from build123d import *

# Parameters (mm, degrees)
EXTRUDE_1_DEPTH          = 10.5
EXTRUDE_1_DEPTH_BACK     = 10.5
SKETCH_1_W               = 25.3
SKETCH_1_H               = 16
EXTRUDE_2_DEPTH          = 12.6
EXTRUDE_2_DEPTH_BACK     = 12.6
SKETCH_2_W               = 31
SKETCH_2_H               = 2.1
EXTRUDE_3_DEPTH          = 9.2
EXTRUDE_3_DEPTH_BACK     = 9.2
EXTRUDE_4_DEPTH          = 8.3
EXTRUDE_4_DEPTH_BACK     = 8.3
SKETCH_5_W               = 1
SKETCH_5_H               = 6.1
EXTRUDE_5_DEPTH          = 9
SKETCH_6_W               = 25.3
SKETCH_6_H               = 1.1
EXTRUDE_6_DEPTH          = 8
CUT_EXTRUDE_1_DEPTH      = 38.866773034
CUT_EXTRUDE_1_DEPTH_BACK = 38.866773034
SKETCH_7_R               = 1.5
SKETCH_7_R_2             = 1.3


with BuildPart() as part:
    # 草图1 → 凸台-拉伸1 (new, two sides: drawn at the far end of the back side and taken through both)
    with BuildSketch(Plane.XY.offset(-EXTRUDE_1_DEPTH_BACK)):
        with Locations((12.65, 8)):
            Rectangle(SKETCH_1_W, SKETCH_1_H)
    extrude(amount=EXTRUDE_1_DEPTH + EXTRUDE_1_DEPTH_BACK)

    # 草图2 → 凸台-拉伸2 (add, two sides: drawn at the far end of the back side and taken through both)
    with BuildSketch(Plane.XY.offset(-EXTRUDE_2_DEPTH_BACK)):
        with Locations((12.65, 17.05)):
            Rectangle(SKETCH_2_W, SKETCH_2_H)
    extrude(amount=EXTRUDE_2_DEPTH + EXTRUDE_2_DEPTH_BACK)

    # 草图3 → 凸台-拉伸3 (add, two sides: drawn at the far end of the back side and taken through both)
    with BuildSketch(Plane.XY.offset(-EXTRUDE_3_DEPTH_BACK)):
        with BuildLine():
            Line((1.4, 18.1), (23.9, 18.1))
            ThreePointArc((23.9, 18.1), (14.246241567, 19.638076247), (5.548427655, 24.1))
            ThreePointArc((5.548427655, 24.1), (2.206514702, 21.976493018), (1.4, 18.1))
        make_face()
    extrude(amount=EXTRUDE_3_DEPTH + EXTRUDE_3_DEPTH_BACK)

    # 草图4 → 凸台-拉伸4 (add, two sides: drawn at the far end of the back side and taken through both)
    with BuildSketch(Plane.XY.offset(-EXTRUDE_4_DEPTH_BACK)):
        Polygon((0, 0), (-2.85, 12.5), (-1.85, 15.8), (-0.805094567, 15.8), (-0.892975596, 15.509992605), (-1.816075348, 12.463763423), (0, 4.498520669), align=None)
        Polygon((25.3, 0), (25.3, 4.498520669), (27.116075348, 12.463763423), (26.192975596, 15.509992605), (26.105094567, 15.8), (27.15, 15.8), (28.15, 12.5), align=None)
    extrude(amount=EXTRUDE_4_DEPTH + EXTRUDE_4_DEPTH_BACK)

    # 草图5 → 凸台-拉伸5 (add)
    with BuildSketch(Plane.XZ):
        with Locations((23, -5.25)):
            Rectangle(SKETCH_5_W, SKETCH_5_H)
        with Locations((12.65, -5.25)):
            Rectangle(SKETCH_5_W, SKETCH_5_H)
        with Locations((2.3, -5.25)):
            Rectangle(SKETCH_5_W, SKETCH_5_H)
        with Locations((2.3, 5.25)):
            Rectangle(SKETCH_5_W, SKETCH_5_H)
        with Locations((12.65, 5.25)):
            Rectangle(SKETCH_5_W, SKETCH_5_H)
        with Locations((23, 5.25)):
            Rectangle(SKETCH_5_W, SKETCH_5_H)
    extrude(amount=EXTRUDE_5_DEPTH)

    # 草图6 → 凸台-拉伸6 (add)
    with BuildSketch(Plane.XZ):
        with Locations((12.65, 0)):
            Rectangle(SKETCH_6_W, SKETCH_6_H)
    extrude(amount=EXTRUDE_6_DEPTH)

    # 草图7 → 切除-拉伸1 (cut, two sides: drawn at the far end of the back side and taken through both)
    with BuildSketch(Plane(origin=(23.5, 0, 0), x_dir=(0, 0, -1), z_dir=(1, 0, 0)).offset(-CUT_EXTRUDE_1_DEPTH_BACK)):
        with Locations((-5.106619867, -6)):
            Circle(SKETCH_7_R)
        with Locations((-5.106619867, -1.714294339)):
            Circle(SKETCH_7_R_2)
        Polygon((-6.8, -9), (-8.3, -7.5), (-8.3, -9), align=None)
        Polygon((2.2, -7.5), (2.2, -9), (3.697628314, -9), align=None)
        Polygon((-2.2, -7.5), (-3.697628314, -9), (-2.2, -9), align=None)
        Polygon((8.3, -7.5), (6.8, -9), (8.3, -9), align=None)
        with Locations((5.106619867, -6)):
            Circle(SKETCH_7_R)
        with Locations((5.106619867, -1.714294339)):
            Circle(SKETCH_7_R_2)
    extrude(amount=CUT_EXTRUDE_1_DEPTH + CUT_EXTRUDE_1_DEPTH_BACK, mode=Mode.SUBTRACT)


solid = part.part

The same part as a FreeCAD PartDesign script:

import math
import FreeCAD as App
import Part
import Sketcher
Q = App.Units.Quantity

doc = App.newDocument("Part")
body = doc.addObject("PartDesign::Body", "Body")

# Sketch on XY plane
sketch1 = body.newObject("Sketcher::SketchObject", "Sketch")
sketch1.AttachmentSupport = (doc.getObject("XY_Plane"), [""])
sketch1.MapMode = "FlatFace"
sketch1.addGeometry(Part.LineSegment(App.Vector(0, 16, 0), App.Vector(0, 0, 0)), False)
sketch1.addGeometry(Part.LineSegment(App.Vector(0, 0, 0), App.Vector(25, 0, 0)), False)
sketch1.addGeometry(Part.LineSegment(App.Vector(25, 0, 0), App.Vector(25, 16, 0)), False)
sketch1.addGeometry(Part.LineSegment(App.Vector(25, 16, 0), App.Vector(0, 16, 0)), False)
sketch1.addConstraint(Sketcher.Constraint("Coincident", 0, 2, 1, 1))
sketch1.addConstraint(Sketcher.Constraint("Coincident", 1, 2, 2, 1))
sketch1.addConstraint(Sketcher.Constraint("Coincident", 2, 2, 3, 1))
sketch1.addConstraint(Sketcher.Constraint("Coincident", 3, 2, 0, 1))
sketch1.addConstraint(Sketcher.Constraint("Vertical", 0))
sketch1.addConstraint(Sketcher.Constraint("Horizontal", 1))
sketch1.addConstraint(Sketcher.Constraint("Vertical", 2))
sketch1.addConstraint(Sketcher.Constraint("Horizontal", 3))
sketch1.addConstraint(Sketcher.Constraint("Coincident", 0, 2, -1, 1))
sketch1.addConstraint(Sketcher.Constraint("DistanceY", 0, 2, 0, 1, Q("16 mm")))
sketch1.addConstraint(Sketcher.Constraint("DistanceX", 1, 1, 1, 2, Q("25.3 mm")))
pad1 = body.newObject("PartDesign::Pad", "Pad")
pad1.Profile = sketch1
pad1.Type = "TwoLengths"
pad1.Length = 10.5
pad1.Length2 = 10.5

# Sketch on XY plane
sketch2 = body.newObject("Sketcher::SketchObject", "Sketch001")
sketch2.AttachmentSupport = (doc.getObject("XY_Plane"), [""])
sketch2.MapMode = "FlatFace"
sketch2.addGeometry(Part.LineSegment(App.Vector(-2.9, 18.1, 0), App.Vector(-2.9, 16, 0)), False)
sketch2.addGeometry(Part.LineSegment(App.Vector(-2.9, 16, 0), App.Vector(28.1, 16, 0)), False)
sketch2.addGeometry(Part.LineSegment(App.Vector(28.1, 16, 0), App.Vector(28.1, 18.1, 0)), False)
sketch2.addGeometry(Part.LineSegment(App.Vector(28.1, 18.1, 0), App.Vector(-2.9, 18.1, 0)), False)
sketch2.addConstraint(Sketcher.Constraint("Coincident", 0, 2, 1, 1))
sketch2.addConstraint(Sketcher.Constraint("Coincident", 1, 2, 2, 1))
sketch2.addConstraint(Sketcher.Constraint("Coincident", 2, 2, 3, 1))
sketch2.addConstraint(Sketcher.Constraint("Coincident", 3, 2, 0, 1))
sketch2.addConstraint(Sketcher.Constraint("Vertical", 0))
sketch2.addConstraint(Sketcher.Constraint("Horizontal", 1))
sketch2.addConstraint(Sketcher.Constraint("Vertical", 2))
sketch2.addConstraint(Sketcher.Constraint("Horizontal", 3))
sketch2.addConstraint(Sketcher.Constraint("DistanceX", 1, 1, 1, 2, Q("31 mm")))
sketch2.addConstraint(Sketcher.Constraint("DistanceY", 0, 2, 0, 1, Q("2.1 mm")))
sketch2.addConstraint(Sketcher.Constraint("DistanceY", -1, 1, 0, 2, Q("16 mm")))
sketch2.addConstraint(Sketcher.Constraint("DistanceX", 0, 2, -1, 1, Q("2.85 mm")))
pad2 = body.newObject("PartDesign::Pad", "Pad001")
pad2.Profile = sketch2
pad2.Type = "TwoLengths"
pad2.Length = 12.6
pad2.Length2 = 12.6

# Sketch on XY plane
sketch3 = body.newObject("Sketcher::SketchObject", "Sketch002")
sketch3.AttachmentSupport = (doc.getObject("XY_Plane"), [""])
sketch3.MapMode = "FlatFace"
sketch3.addGeometry(Part.LineSegment(App.Vector(1, 18, 0), App.Vector(24, 18, 0)), False)
sketch3.addGeometry(Part.ArcOfCircle(Part.Circle(App.Vector(24, 49, 0), App.Vector(0, 0, 1), 31), math.radians(-126), math.radians(-90)), False)
sketch3.addGeometry(Part.ArcOfCircle(Part.Circle(App.Vector(6, 19, 0), App.Vector(0, 0, 1), 5), math.radians(100), math.radians(191)), False)
sketch3.addConstraint(Sketcher.Constraint("Tangent", 0, 2, 1, 2))
sketch3.addConstraint(Sketcher.Constraint("Coincident", 1, 1, 2, 1))
sketch3.addConstraint(Sketcher.Constraint("Coincident", 2, 2, 0, 1))
sketch3.addConstraint(Sketcher.Constraint("Horizontal", 0))
sketch3.addConstraint(Sketcher.Constraint("DistanceX", 0, 1, 0, 2, Q("22.5 mm")))
sketch3.addConstraint(Sketcher.Constraint("DistanceY", 0, 2, 1, 1, Q("6 mm")))
sketch3.addConstraint(Sketcher.Constraint("DistanceX", -1, 1, 1, 3, Q("23.9 mm")))
sketch3.addConstraint(Sketcher.Constraint("DistanceY", -1, 1, 0, 2, Q("18.1 mm")))
sketch3.addConstraint(Sketcher.Constraint("Radius", 1, Q("31.065017 mm")))
sketch3.addConstraint(Sketcher.Constraint("Radius", 2, Q("5.086184 mm")))
pad3 = body.newObject("PartDesign::Pad", "Pad002")
pad3.Profile = sketch3
pad3.Type = "TwoLengths"
pad3.Length = 9.2
pad3.Length2 = 9.2

# Sketch on XY plane
sketch4 = body.newObject("Sketcher::SketchObject", "Sketch003")
sketch4.AttachmentSupport = (doc.getObject("XY_Plane"), [""])
sketch4.MapMode = "FlatFace"
sketch4.addGeometry(Part.LineSegment(App.Vector(-2.85, 12.5, 0), App.Vector(0, 0, 0)), False)
sketch4.addGeometry(Part.LineSegment(App.Vector(0, 0, 0), App.Vector(0, 4.5, 0)), False)
sketch4.addGeometry(Part.LineSegment(App.Vector(0, 4.5, 0), App.Vector(-1.82, 12.46, 0)), False)
sketch4.addGeometry(Part.LineSegment(App.Vector(-1.82, 12.46, 0), App.Vector(-0.89, 15.51, 0)), False)
sketch4.addGeometry(Part.LineSegment(App.Vector(-0.89, 15.51, 0), App.Vector(-0.81, 15.8, 0)), False)
sketch4.addGeometry(Part.LineSegment(App.Vector(-0.81, 15.8, 0), App.Vector(-1.85, 15.8, 0)), False)
sketch4.addGeometry(Part.LineSegment(App.Vector(-1.85, 15.8, 0), App.Vector(-2.85, 12.5, 0)), False)
sketch4.addGeometry(Part.LineSegment(App.Vector(25.3, 4.5, 0), App.Vector(25.3, 0, 0)), False)
sketch4.addGeometry(Part.LineSegment(App.Vector(25.3, 0, 0), App.Vector(28.15, 12.5, 0)), False)
sketch4.addGeometry(Part.LineSegment(App.Vector(28.15, 12.5, 0), App.Vector(27.15, 15.8, 0)), False)
sketch4.addGeometry(Part.LineSegment(App.Vector(27.15, 15.8, 0), App.Vector(26.11, 15.8, 0)), False)
sketch4.addGeometry(Part.LineSegment(App.Vector(26.11, 15.8, 0), App.Vector(26.19, 15.51, 0)), False)
sketch4.addGeometry(Part.LineSegment(App.Vector(26.19, 15.51, 0), App.Vector(27.12, 12.46, 0)), False)
sketch4.addGeometry(Part.LineSegment(App.Vector(27.12, 12.46, 0), App.Vector(25.3, 4.5, 0)), False)
sketch4.addConstraint(Sketcher.Constraint("Coincident", 0, 2, 1, 1))
sketch4.addConstraint(Sketcher.Constraint("Coincident", 1, 2, 2, 1))
sketch4.addConstraint(Sketcher.Constraint("Coincident", 2, 2, 3, 1))
sketch4.addConstraint(Sketcher.Constraint("Coincident", 3, 2, 4, 1))
sketch4.addConstraint(Sketcher.Constraint("Coincident", 4, 2, 5, 1))
sketch4.addConstraint(Sketcher.Constraint("Coincident", 5, 2, 6, 1))
sketch4.addConstraint(Sketcher.Constraint("Coincident", 6, 2, 0, 1))
sketch4.addConstraint(Sketcher.Constraint("Coincident", 7, 2, 8, 1))
sketch4.addConstraint(Sketcher.Constraint("Coincident", 8, 2, 9, 1))
sketch4.addConstraint(Sketcher.Constraint("Coincident", 9, 2, 10, 1))
sketch4.addConstraint(Sketcher.Constraint("Coincident", 10, 2, 11, 1))
sketch4.addConstraint(Sketcher.Constraint("Coincident", 11, 2, 12, 1))
sketch4.addConstraint(Sketcher.Constraint("Coincident", 12, 2, 13, 1))
sketch4.addConstraint(Sketcher.Constraint("Coincident", 13, 2, 7, 1))
sketch4.addConstraint(Sketcher.Constraint("Vertical", 1))
sketch4.addConstraint(Sketcher.Constraint("Horizontal", 5))
sketch4.addConstraint(Sketcher.Constraint("Vertical", 7))
sketch4.addConstraint(Sketcher.Constraint("Horizontal", 10))
sketch4.addConstraint(Sketcher.Constraint("Coincident", 0, 2, -1, 1))
sketch4.addConstraint(Sketcher.Constraint("PointOnObject", 7, 2, -1))
sketch4.addConstraint(Sketcher.Constraint("Parallel", 0, 2))
sketch4.addConstraint(Sketcher.Constraint("Parallel", 3, 4))
sketch4.addConstraint(Sketcher.Constraint("Parallel", 4, 6))
sketch4.addConstraint(Sketcher.Constraint("Parallel", 9, 11))
sketch4.addConstraint(Sketcher.Constraint("Parallel", 11, 12))
sketch4.addConstraint(Sketcher.Constraint("Parallel", 8, 13))
sketch4.addConstraint(Sketcher.Constraint("Horizontal", 6, 2, 8, 2))
sketch4.addConstraint(Sketcher.Constraint("Horizontal", 5, 2, 9, 2))
sketch4.addConstraint(Sketcher.Constraint("Horizontal", 3, 2, 11, 2))
sketch4.addConstraint(Sketcher.Constraint("Horizontal", 2, 2, 12, 2))
sketch4.addConstraint(Sketcher.Constraint("Horizontal", 1, 2, 13, 2))
sketch4.addConstraint(Sketcher.Constraint("Equal", 5, 10))
sketch4.addConstraint(Sketcher.Constraint("Equal", 0, 8))
sketch4.addConstraint(Sketcher.Constraint("DistanceX", 6, 2, 5, 2, Q("1 mm")))
sketch4.addConstraint(Sketcher.Constraint("DistanceX", 5, 2, 9, 2, Q("29 mm")))
sketch4.addConstraint(Sketcher.Constraint("DistanceY", -1, 1, 4, 2, Q("15.8 mm")))
sketch4.addConstraint(Sketcher.Constraint("DistanceY", -1, 1, 6, 2, Q("12.5 mm")))
sketch4.addConstraint(Sketcher.Constraint("DistanceX", -1, 1, 7, 2, Q("25.3 mm")))
sketch4.addConstraint(Sketcher.Constraint("DistanceY", 1, 1, 1, 2, Q("4.498521 mm")))
sketch4.addConstraint(Sketcher.Constraint("DistanceX", 2, 2, 3, 2, Q("0.9231 mm")))
sketch4.addConstraint(Sketcher.Constraint("Distance", 4, Q("0.30303 mm")))
pad4 = body.newObject("PartDesign::Pad", "Pad003")
pad4.Profile = sketch4
pad4.Type = "TwoLengths"
pad4.Length = 8.3
pad4.Length2 = 8.3

# Sketch on XZ plane
sketch5 = body.newObject("Sketcher::SketchObject", "Sketch004")
sketch5.AttachmentSupport = (doc.getObject("XZ_Plane"), [""])
sketch5.MapMode = "FlatFace"
sketch5.addGeometry(Part.LineSegment(App.Vector(22.5, -2.2, 0), App.Vector(22.5, -8.3, 0)), False)
sketch5.addGeometry(Part.LineSegment(App.Vector(22.5, -8.3, 0), App.Vector(23.5, -8.3, 0)), False)
sketch5.addGeometry(Part.LineSegment(App.Vector(23.5, -8.3, 0), App.Vector(23.5, -2.2, 0)), False)
sketch5.addGeometry(Part.LineSegment(App.Vector(23.5, -2.2, 0), App.Vector(22.5, -2.2, 0)), False)
sketch5.addGeometry(Part.LineSegment(App.Vector(12.2, -2.2, 0), App.Vector(12.2, -8.3, 0)), False)
sketch5.addGeometry(Part.LineSegment(App.Vector(12.2, -8.3, 0), App.Vector(13.2, -8.3, 0)), False)
sketch5.addGeometry(Part.LineSegment(App.Vector(13.2, -8.3, 0), App.Vector(13.2, -2.2, 0)), False)
sketch5.addGeometry(Part.LineSegment(App.Vector(13.2, -2.2, 0), App.Vector(12.2, -2.2, 0)), False)
sketch5.addGeometry(Part.LineSegment(App.Vector(1.8, -2.2, 0), App.Vector(1.8, -8.3, 0)), False)
sketch5.addGeometry(Part.LineSegment(App.Vector(1.8, -8.3, 0), App.Vector(2.8, -8.3, 0)), False)
sketch5.addGeometry(Part.LineSegment(App.Vector(2.8, -8.3, 0), App.Vector(2.8, -2.2, 0)), False)
sketch5.addGeometry(Part.LineSegment(App.Vector(2.8, -2.2, 0), App.Vector(1.8, -2.2, 0)), False)
sketch5.addGeometry(Part.LineSegment(App.Vector(1.8, 8.3, 0), App.Vector(1.8, 2.2, 0)), False)
sketch5.addGeometry(Part.LineSegment(App.Vector(1.8, 2.2, 0), App.Vector(2.8, 2.2, 0)), False)
sketch5.addGeometry(Part.LineSegment(App.Vector(2.8, 2.2, 0), App.Vector(2.8, 8.3, 0)), False)
sketch5.addGeometry(Part.LineSegment(App.Vector(2.8, 8.3, 0), App.Vector(1.8, 8.3, 0)), False)
sketch5.addGeometry(Part.LineSegment(App.Vector(12.2, 8.3, 0), App.Vector(12.2, 2.2, 0)), False)
sketch5.addGeometry(Part.LineSegment(App.Vector(12.2, 2.2, 0), App.Vector(13.2, 2.2, 0)), False)
sketch5.addGeometry(Part.LineSegment(App.Vector(13.2, 2.2, 0), App.Vector(13.2, 8.3, 0)), False)
sketch5.addGeometry(Part.LineSegment(App.Vector(13.2, 8.3, 0), App.Vector(12.2, 8.3, 0)), False)
sketch5.addGeometry(Part.LineSegment(App.Vector(22.5, 8.3, 0), App.Vector(22.5, 2.2, 0)), False)
sketch5.addGeometry(Part.LineSegment(App.Vector(22.5, 2.2, 0), App.Vector(23.5, 2.2, 0)), False)
sketch5.addGeometry(Part.LineSegment(App.Vector(23.5, 2.2, 0), App.Vector(23.5, 8.3, 0)), False)
sketch5.addGeometry(Part.LineSegment(App.Vector(23.5, 8.3, 0), App.Vector(22.5, 8.3, 0)), False)
sketch5.addConstraint(Sketcher.Constraint("Coincident", 0, 2, 1, 1))
sketch5.addConstraint(Sketcher.Constraint("Coincident", 1, 2, 2, 1))
sketch5.addConstraint(Sketcher.Constraint("Coincident", 2, 2, 3, 1))
sketch5.addConstraint(Sketcher.Constraint("Coincident", 3, 2, 0, 1))
sketch5.addConstraint(Sketcher.Constraint("Coincident", 4, 2, 5, 1))
sketch5.addConstraint(Sketcher.Constraint("Coincident", 5, 2, 6, 1))
sketch5.addConstraint(Sketcher.Constraint("Coincident", 6, 2, 7, 1))
sketch5.addConstraint(Sketcher.Constraint("Coincident", 7, 2, 4, 1))
sketch5.addConstraint(Sketcher.Constraint("Coincident", 8, 2, 9, 1))
sketch5.addConstraint(Sketcher.Constraint("Coincident", 9, 2, 10, 1))
sketch5.addConstraint(Sketcher.Constraint("Coincident", 10, 2, 11, 1))
sketch5.addConstraint(Sketcher.Constraint("Coincident", 11, 2, 8, 1))
sketch5.addConstraint(Sketcher.Constraint("Coincident", 12, 2, 13, 1))
sketch5.addConstraint(Sketcher.Constraint("Coincident", 13, 2, 14, 1))
sketch5.addConstraint(Sketcher.Constraint("Coincident", 14, 2, 15, 1))
sketch5.addConstraint(Sketcher.Constraint("Coincident", 15, 2, 12, 1))
sketch5.addConstraint(Sketcher.Constraint("Coincident", 16, 2, 17, 1))
sketch5.addConstraint(Sketcher.Constraint("Coincident", 17, 2, 18, 1))
sketch5.addConstraint(Sketcher.Constraint("Coincident", 18, 2, 19, 1))
sketch5.addConstraint(Sketcher.Constraint("Coincident", 19, 2, 16, 1))
sketch5.addConstraint(Sketcher.Constraint("Coincident", 20, 2, 21, 1))
sketch5.addConstraint(Sketcher.Constraint("Coincident", 21, 2, 22, 1))
sketch5.addConstraint(Sketcher.Constraint("Coincident", 22, 2, 23, 1))
sketch5.addConstraint(Sketcher.Constraint("Coincident", 23, 2, 20, 1))
sketch5.addConstraint(Sketcher.Constraint("Vertical", 0))
sketch5.addConstraint(Sketcher.Constraint("Horizontal", 1))
sketch5.addConstraint(Sketcher.Constraint("Vertical", 2))
sketch5.addConstraint(Sketcher.Constraint("Horizontal", 3))
sketch5.addConstraint(Sketcher.Constraint("Vertical", 4))
sketch5.addConstraint(Sketcher.Constraint("Horizontal", 5))
sketch5.addConstraint(Sketcher.Constraint("Vertical", 6))
sketch5.addConstraint(Sketcher.Constraint("Horizontal", 7))
sketch5.addConstraint(Sketcher.Constraint("Vertical", 8))
sketch5.addConstraint(Sketcher.Constraint("Horizontal", 9))
sketch5.addConstraint(Sketcher.Constraint("Vertical", 10))
sketch5.addConstraint(Sketcher.Constraint("Horizontal", 11))
sketch5.addConstraint(Sketcher.Constraint("Vertical", 12))
sketch5.addConstraint(Sketcher.Constraint("Horizontal", 13))
sketch5.addConstraint(Sketcher.Constraint("Vertical", 14))
sketch5.addConstraint(Sketcher.Constraint("Horizontal", 15))
sketch5.addConstraint(Sketcher.Constraint("Vertical", 16))
sketch5.addConstraint(Sketcher.Constraint("Horizontal", 17))
sketch5.addConstraint(Sketcher.Constraint("Vertical", 18))
sketch5.addConstraint(Sketcher.Constraint("Horizontal", 19))
sketch5.addConstraint(Sketcher.Constraint("Vertical", 20))
sketch5.addConstraint(Sketcher.Constraint("Horizontal", 21))
sketch5.addConstraint(Sketcher.Constraint("Vertical", 22))
sketch5.addConstraint(Sketcher.Constraint("Horizontal", 23))
sketch5.addConstraint(Sketcher.Constraint("Symmetric", 11, 2, 12, 2, -1))
sketch5.addConstraint(Sketcher.Constraint("Symmetric", 9, 2, 14, 2, -1))
sketch5.addConstraint(Sketcher.Constraint("Symmetric", 7, 2, 16, 2, -1))
sketch5.addConstraint(Sketcher.Constraint("Symmetric", 5, 2, 18, 2, -1))
sketch5.addConstraint(Sketcher.Constraint("Symmetric", 3, 2, 20, 2, -1))
sketch5.addConstraint(Sketcher.Constraint("Symmetric", 1, 2, 22, 2, -1))
sketch5.addConstraint(Sketcher.Constraint("Horizontal", 1, 2, 4, 2))
sketch5.addConstraint(Sketcher.Constraint("Horizontal", 3, 2, 6, 2))
sketch5.addConstraint(Sketcher.Constraint("Horizontal", 5, 2, 8, 2))
sketch5.addConstraint(Sketcher.Constraint("Horizontal", 7, 2, 10, 2))
sketch5.addConstraint(Sketcher.Constraint("Equal", 3, 5))
sketch5.addConstraint(Sketcher.Constraint("Equal", 7, 9))
sketch5.addConstraint(Sketcher.Constraint("DistanceX", 1, 1, 1, 2, Q("1 mm")))
sketch5.addConstraint(Sketcher.Constraint("DistanceY", 0, 2, 0, 1, Q("6.1 mm")))
sketch5.addConstraint(Sketcher.Constraint("DistanceX", -1, 1, 0, 2, Q("22.5 mm")))
sketch5.addConstraint(Sketcher.Constraint("DistanceY", 0, 2, -1, 1, Q("8.3 mm")))
sketch5.addConstraint(Sketcher.Constraint("DistanceX", -1, 1, 8, 2, Q("1.8 mm")))
sketch5.addConstraint(Sketcher.Constraint("DistanceX", -1, 1, 4, 2, Q("12.15 mm")))
pad5 = body.newObject("PartDesign::Pad", "Pad004")
pad5.Profile = sketch5
pad5.Length = 9

# Sketch on XZ plane
sketch6 = body.newObject("Sketcher::SketchObject", "Sketch005")
sketch6.AttachmentSupport = (doc.getObject("XZ_Plane"), [""])
sketch6.MapMode = "FlatFace"
sketch6.addGeometry(Part.LineSegment(App.Vector(0, 0.6, 0), App.Vector(0, -0.6, 0)), False)
sketch6.addGeometry(Part.LineSegment(App.Vector(0, -0.6, 0), App.Vector(25.3, -0.6, 0)), False)
sketch6.addGeometry(Part.LineSegment(App.Vector(25.3, -0.6, 0), App.Vector(25.3, 0.6, 0)), False)
sketch6.addGeometry(Part.LineSegment(App.Vector(25.3, 0.6, 0), App.Vector(0, 0.6, 0)), False)
sketch6.addConstraint(Sketcher.Constraint("Coincident", 0, 2, 1, 1))
sketch6.addConstraint(Sketcher.Constraint("Coincident", 1, 2, 2, 1))
sketch6.addConstraint(Sketcher.Constraint("Coincident", 2, 2, 3, 1))
sketch6.addConstraint(Sketcher.Constraint("Coincident", 3, 2, 0, 1))
sketch6.addConstraint(Sketcher.Constraint("Vertical", 0))
sketch6.addConstraint(Sketcher.Constraint("Horizontal", 1))
sketch6.addConstraint(Sketcher.Constraint("Vertical", 2))
sketch6.addConstraint(Sketcher.Constraint("Horizontal", 3))
sketch6.addConstraint(Sketcher.Constraint("Symmetric", 0, 2, 3, 2, -1, 1))
sketch6.addConstraint(Sketcher.Constraint("DistanceX", 1, 1, 1, 2, Q("25.3 mm")))
sketch6.addConstraint(Sketcher.Constraint("DistanceY", 0, 2, 0, 1, Q("1.1 mm")))
pad6 = body.newObject("PartDesign::Pad", "Pad005")
pad6.Profile = sketch6
pad6.Length = 8

# Sketch on YZ plane
sketch7 = body.newObject("Sketcher::SketchObject", "Sketch006")
sketch7.AttachmentSupport = (doc.getObject("YZ_Plane"), [""])
sketch7.MapMode = "FlatFace"
sketch7.AttachmentOffset = App.Placement(App.Vector(0, 0, 23.5), App.Rotation())
sketch7.addGeometry(Part.Circle(App.Vector(-6, 5.1, 0), App.Vector(0, 0, 1), 1.5), False)
sketch7.addGeometry(Part.Circle(App.Vector(-1.7, 5.1, 0), App.Vector(0, 0, 1), 1.3), False)
sketch7.addGeometry(Part.LineSegment(App.Vector(-9, 6.8, 0), App.Vector(-7.5, 8.3, 0)), False)
sketch7.addGeometry(Part.LineSegment(App.Vector(-7.5, 8.3, 0), App.Vector(-9, 8.3, 0)), False)
sketch7.addGeometry(Part.LineSegment(App.Vector(-9, 8.3, 0), App.Vector(-9, 6.8, 0)), False)
sketch7.addGeometry(Part.LineSegment(App.Vector(-7.5, -2.2, 0), App.Vector(-9, -2.2, 0)), False)
sketch7.addGeometry(Part.LineSegment(App.Vector(-9, -2.2, 0), App.Vector(-9, -3.7, 0)), False)
sketch7.addGeometry(Part.LineSegment(App.Vector(-9, -3.7, 0), App.Vector(-7.5, -2.2, 0)), False)
sketch7.addGeometry(Part.LineSegment(App.Vector(-7.5, 2.2, 0), App.Vector(-9, 3.7, 0)), False)
sketch7.addGeometry(Part.LineSegment(App.Vector(-9, 3.7, 0), App.Vector(-9, 2.2, 0)), False)
sketch7.addGeometry(Part.LineSegment(App.Vector(-9, 2.2, 0), App.Vector(-7.5, 2.2, 0)), False)
sketch7.addGeometry(Part.LineSegment(App.Vector(-7.5, -8.3, 0), App.Vector(-9, -6.8, 0)), False)
sketch7.addGeometry(Part.LineSegment(App.Vector(-9, -6.8, 0), App.Vector(-9, -8.3, 0)), False)
sketch7.addGeometry(Part.LineSegment(App.Vector(-9, -8.3, 0), App.Vector(-7.5, -8.3, 0)), False)
sketch7.addGeometry(Part.Circle(App.Vector(-6, -5.1, 0), App.Vector(0, 0, 1), 1.5), False)
sketch7.addGeometry(Part.Circle(App.Vector(-1.7, -5.1, 0), App.Vector(0, 0, 1), 1.3), False)
sketch7.addConstraint(Sketcher.Constraint("Coincident", 2, 2, 3, 1))
sketch7.addConstraint(Sketcher.Constraint("Coincident", 3, 2, 4, 1))
sketch7.addConstraint(Sketcher.Constraint("Coincident", 4, 2, 2, 1))
sketch7.addConstraint(Sketcher.Constraint("Coincident", 5, 2, 6, 1))
sketch7.addConstraint(Sketcher.Constraint("Coincident", 6, 2, 7, 1))
sketch7.addConstraint(Sketcher.Constraint("Coincident", 7, 2, 5, 1))
sketch7.addConstraint(Sketcher.Constraint("Coincident", 8, 2, 9, 1))
sketch7.addConstraint(Sketcher.Constraint("Coincident", 9, 2, 10, 1))
sketch7.addConstraint(Sketcher.Constraint("Coincident", 10, 2, 8, 1))
sketch7.addConstraint(Sketcher.Constraint("Coincident", 11, 2, 12, 1))
sketch7.addConstraint(Sketcher.Constraint("Coincident", 12, 2, 13, 1))
sketch7.addConstraint(Sketcher.Constraint("Coincident", 13, 2, 11, 1))
sketch7.addConstraint(Sketcher.Constraint("Horizontal", 3))
sketch7.addConstraint(Sketcher.Constraint("Vertical", 4))
sketch7.addConstraint(Sketcher.Constraint("Horizontal", 5))
sketch7.addConstraint(Sketcher.Constraint("Vertical", 6))
sketch7.addConstraint(Sketcher.Constraint("Vertical", 9))
sketch7.addConstraint(Sketcher.Constraint("Horizontal", 10))
sketch7.addConstraint(Sketcher.Constraint("Vertical", 12))
sketch7.addConstraint(Sketcher.Constraint("Horizontal", 13))
sketch7.addConstraint(Sketcher.Constraint("Equal", 0, 14))
sketch7.addConstraint(Sketcher.Constraint("Equal", 1, 15))
sketch7.addConstraint(Sketcher.Constraint("Symmetric", 0, 3, 14, 3, -1))
sketch7.addConstraint(Sketcher.Constraint("Symmetric", 1, 3, 15, 3, -1))
sketch7.addConstraint(Sketcher.Constraint("Symmetric", 6, 2, 8, 2, -1))
sketch7.addConstraint(Sketcher.Constraint("Symmetric", 7, 2, 10, 2, -1))
sketch7.addConstraint(Sketcher.Constraint("Symmetric", 4, 2, 11, 2, -1))
sketch7.addConstraint(Sketcher.Constraint("Symmetric", 2, 2, 13, 2, -1))
sketch7.addConstraint(Sketcher.Constraint("Perpendicular", 2, 11))
sketch7.addConstraint(Sketcher.Constraint("Horizontal", 0, 3, 1, 3))
sketch7.addConstraint(Sketcher.Constraint("Vertical", 4, 2, 5, 2))
sketch7.addConstraint(Sketcher.Constraint("Vertical", 2, 2, 7, 2))
sketch7.addConstraint(Sketcher.Constraint("Diameter", 0, Q("3 mm")))
sketch7.addConstraint(Sketcher.Constraint("Diameter", 1, Q("2.6 mm")))
sketch7.addConstraint(Sketcher.Constraint("DistanceX", 3, 2, 3, 1, Q("1.5 mm")))
sketch7.addConstraint(Sketcher.Constraint("DistanceX", 0, 3, -1, 1, Q("6 mm")))
sketch7.addConstraint(Sketcher.Constraint("DistanceX", 3, 2, -1, 1, Q("9 mm")))
sketch7.addConstraint(Sketcher.Constraint("DistanceY", 5, 2, 4, 2, Q("9 mm")))
sketch7.addConstraint(Sketcher.Constraint("DistanceY", -1, 1, 2, 2, Q("8.3 mm")))
sketch7.addConstraint(Sketcher.Constraint("DistanceY", 6, 2, 6, 1, Q("1.497628 mm")))
sketch7.addConstraint(Sketcher.Constraint("DistanceY", -1, 1, 0, 3, Q("5.10662 mm")))
sketch7.addConstraint(Sketcher.Constraint("DistanceX", 1, 3, -1, 1, Q("1.714294 mm")))
pocket1 = body.newObject("PartDesign::Pocket", "Pocket")
pocket1.Profile = sketch7
pocket1.Type = "ThroughAll"
pocket1.Midplane = True

doc.recompute()
